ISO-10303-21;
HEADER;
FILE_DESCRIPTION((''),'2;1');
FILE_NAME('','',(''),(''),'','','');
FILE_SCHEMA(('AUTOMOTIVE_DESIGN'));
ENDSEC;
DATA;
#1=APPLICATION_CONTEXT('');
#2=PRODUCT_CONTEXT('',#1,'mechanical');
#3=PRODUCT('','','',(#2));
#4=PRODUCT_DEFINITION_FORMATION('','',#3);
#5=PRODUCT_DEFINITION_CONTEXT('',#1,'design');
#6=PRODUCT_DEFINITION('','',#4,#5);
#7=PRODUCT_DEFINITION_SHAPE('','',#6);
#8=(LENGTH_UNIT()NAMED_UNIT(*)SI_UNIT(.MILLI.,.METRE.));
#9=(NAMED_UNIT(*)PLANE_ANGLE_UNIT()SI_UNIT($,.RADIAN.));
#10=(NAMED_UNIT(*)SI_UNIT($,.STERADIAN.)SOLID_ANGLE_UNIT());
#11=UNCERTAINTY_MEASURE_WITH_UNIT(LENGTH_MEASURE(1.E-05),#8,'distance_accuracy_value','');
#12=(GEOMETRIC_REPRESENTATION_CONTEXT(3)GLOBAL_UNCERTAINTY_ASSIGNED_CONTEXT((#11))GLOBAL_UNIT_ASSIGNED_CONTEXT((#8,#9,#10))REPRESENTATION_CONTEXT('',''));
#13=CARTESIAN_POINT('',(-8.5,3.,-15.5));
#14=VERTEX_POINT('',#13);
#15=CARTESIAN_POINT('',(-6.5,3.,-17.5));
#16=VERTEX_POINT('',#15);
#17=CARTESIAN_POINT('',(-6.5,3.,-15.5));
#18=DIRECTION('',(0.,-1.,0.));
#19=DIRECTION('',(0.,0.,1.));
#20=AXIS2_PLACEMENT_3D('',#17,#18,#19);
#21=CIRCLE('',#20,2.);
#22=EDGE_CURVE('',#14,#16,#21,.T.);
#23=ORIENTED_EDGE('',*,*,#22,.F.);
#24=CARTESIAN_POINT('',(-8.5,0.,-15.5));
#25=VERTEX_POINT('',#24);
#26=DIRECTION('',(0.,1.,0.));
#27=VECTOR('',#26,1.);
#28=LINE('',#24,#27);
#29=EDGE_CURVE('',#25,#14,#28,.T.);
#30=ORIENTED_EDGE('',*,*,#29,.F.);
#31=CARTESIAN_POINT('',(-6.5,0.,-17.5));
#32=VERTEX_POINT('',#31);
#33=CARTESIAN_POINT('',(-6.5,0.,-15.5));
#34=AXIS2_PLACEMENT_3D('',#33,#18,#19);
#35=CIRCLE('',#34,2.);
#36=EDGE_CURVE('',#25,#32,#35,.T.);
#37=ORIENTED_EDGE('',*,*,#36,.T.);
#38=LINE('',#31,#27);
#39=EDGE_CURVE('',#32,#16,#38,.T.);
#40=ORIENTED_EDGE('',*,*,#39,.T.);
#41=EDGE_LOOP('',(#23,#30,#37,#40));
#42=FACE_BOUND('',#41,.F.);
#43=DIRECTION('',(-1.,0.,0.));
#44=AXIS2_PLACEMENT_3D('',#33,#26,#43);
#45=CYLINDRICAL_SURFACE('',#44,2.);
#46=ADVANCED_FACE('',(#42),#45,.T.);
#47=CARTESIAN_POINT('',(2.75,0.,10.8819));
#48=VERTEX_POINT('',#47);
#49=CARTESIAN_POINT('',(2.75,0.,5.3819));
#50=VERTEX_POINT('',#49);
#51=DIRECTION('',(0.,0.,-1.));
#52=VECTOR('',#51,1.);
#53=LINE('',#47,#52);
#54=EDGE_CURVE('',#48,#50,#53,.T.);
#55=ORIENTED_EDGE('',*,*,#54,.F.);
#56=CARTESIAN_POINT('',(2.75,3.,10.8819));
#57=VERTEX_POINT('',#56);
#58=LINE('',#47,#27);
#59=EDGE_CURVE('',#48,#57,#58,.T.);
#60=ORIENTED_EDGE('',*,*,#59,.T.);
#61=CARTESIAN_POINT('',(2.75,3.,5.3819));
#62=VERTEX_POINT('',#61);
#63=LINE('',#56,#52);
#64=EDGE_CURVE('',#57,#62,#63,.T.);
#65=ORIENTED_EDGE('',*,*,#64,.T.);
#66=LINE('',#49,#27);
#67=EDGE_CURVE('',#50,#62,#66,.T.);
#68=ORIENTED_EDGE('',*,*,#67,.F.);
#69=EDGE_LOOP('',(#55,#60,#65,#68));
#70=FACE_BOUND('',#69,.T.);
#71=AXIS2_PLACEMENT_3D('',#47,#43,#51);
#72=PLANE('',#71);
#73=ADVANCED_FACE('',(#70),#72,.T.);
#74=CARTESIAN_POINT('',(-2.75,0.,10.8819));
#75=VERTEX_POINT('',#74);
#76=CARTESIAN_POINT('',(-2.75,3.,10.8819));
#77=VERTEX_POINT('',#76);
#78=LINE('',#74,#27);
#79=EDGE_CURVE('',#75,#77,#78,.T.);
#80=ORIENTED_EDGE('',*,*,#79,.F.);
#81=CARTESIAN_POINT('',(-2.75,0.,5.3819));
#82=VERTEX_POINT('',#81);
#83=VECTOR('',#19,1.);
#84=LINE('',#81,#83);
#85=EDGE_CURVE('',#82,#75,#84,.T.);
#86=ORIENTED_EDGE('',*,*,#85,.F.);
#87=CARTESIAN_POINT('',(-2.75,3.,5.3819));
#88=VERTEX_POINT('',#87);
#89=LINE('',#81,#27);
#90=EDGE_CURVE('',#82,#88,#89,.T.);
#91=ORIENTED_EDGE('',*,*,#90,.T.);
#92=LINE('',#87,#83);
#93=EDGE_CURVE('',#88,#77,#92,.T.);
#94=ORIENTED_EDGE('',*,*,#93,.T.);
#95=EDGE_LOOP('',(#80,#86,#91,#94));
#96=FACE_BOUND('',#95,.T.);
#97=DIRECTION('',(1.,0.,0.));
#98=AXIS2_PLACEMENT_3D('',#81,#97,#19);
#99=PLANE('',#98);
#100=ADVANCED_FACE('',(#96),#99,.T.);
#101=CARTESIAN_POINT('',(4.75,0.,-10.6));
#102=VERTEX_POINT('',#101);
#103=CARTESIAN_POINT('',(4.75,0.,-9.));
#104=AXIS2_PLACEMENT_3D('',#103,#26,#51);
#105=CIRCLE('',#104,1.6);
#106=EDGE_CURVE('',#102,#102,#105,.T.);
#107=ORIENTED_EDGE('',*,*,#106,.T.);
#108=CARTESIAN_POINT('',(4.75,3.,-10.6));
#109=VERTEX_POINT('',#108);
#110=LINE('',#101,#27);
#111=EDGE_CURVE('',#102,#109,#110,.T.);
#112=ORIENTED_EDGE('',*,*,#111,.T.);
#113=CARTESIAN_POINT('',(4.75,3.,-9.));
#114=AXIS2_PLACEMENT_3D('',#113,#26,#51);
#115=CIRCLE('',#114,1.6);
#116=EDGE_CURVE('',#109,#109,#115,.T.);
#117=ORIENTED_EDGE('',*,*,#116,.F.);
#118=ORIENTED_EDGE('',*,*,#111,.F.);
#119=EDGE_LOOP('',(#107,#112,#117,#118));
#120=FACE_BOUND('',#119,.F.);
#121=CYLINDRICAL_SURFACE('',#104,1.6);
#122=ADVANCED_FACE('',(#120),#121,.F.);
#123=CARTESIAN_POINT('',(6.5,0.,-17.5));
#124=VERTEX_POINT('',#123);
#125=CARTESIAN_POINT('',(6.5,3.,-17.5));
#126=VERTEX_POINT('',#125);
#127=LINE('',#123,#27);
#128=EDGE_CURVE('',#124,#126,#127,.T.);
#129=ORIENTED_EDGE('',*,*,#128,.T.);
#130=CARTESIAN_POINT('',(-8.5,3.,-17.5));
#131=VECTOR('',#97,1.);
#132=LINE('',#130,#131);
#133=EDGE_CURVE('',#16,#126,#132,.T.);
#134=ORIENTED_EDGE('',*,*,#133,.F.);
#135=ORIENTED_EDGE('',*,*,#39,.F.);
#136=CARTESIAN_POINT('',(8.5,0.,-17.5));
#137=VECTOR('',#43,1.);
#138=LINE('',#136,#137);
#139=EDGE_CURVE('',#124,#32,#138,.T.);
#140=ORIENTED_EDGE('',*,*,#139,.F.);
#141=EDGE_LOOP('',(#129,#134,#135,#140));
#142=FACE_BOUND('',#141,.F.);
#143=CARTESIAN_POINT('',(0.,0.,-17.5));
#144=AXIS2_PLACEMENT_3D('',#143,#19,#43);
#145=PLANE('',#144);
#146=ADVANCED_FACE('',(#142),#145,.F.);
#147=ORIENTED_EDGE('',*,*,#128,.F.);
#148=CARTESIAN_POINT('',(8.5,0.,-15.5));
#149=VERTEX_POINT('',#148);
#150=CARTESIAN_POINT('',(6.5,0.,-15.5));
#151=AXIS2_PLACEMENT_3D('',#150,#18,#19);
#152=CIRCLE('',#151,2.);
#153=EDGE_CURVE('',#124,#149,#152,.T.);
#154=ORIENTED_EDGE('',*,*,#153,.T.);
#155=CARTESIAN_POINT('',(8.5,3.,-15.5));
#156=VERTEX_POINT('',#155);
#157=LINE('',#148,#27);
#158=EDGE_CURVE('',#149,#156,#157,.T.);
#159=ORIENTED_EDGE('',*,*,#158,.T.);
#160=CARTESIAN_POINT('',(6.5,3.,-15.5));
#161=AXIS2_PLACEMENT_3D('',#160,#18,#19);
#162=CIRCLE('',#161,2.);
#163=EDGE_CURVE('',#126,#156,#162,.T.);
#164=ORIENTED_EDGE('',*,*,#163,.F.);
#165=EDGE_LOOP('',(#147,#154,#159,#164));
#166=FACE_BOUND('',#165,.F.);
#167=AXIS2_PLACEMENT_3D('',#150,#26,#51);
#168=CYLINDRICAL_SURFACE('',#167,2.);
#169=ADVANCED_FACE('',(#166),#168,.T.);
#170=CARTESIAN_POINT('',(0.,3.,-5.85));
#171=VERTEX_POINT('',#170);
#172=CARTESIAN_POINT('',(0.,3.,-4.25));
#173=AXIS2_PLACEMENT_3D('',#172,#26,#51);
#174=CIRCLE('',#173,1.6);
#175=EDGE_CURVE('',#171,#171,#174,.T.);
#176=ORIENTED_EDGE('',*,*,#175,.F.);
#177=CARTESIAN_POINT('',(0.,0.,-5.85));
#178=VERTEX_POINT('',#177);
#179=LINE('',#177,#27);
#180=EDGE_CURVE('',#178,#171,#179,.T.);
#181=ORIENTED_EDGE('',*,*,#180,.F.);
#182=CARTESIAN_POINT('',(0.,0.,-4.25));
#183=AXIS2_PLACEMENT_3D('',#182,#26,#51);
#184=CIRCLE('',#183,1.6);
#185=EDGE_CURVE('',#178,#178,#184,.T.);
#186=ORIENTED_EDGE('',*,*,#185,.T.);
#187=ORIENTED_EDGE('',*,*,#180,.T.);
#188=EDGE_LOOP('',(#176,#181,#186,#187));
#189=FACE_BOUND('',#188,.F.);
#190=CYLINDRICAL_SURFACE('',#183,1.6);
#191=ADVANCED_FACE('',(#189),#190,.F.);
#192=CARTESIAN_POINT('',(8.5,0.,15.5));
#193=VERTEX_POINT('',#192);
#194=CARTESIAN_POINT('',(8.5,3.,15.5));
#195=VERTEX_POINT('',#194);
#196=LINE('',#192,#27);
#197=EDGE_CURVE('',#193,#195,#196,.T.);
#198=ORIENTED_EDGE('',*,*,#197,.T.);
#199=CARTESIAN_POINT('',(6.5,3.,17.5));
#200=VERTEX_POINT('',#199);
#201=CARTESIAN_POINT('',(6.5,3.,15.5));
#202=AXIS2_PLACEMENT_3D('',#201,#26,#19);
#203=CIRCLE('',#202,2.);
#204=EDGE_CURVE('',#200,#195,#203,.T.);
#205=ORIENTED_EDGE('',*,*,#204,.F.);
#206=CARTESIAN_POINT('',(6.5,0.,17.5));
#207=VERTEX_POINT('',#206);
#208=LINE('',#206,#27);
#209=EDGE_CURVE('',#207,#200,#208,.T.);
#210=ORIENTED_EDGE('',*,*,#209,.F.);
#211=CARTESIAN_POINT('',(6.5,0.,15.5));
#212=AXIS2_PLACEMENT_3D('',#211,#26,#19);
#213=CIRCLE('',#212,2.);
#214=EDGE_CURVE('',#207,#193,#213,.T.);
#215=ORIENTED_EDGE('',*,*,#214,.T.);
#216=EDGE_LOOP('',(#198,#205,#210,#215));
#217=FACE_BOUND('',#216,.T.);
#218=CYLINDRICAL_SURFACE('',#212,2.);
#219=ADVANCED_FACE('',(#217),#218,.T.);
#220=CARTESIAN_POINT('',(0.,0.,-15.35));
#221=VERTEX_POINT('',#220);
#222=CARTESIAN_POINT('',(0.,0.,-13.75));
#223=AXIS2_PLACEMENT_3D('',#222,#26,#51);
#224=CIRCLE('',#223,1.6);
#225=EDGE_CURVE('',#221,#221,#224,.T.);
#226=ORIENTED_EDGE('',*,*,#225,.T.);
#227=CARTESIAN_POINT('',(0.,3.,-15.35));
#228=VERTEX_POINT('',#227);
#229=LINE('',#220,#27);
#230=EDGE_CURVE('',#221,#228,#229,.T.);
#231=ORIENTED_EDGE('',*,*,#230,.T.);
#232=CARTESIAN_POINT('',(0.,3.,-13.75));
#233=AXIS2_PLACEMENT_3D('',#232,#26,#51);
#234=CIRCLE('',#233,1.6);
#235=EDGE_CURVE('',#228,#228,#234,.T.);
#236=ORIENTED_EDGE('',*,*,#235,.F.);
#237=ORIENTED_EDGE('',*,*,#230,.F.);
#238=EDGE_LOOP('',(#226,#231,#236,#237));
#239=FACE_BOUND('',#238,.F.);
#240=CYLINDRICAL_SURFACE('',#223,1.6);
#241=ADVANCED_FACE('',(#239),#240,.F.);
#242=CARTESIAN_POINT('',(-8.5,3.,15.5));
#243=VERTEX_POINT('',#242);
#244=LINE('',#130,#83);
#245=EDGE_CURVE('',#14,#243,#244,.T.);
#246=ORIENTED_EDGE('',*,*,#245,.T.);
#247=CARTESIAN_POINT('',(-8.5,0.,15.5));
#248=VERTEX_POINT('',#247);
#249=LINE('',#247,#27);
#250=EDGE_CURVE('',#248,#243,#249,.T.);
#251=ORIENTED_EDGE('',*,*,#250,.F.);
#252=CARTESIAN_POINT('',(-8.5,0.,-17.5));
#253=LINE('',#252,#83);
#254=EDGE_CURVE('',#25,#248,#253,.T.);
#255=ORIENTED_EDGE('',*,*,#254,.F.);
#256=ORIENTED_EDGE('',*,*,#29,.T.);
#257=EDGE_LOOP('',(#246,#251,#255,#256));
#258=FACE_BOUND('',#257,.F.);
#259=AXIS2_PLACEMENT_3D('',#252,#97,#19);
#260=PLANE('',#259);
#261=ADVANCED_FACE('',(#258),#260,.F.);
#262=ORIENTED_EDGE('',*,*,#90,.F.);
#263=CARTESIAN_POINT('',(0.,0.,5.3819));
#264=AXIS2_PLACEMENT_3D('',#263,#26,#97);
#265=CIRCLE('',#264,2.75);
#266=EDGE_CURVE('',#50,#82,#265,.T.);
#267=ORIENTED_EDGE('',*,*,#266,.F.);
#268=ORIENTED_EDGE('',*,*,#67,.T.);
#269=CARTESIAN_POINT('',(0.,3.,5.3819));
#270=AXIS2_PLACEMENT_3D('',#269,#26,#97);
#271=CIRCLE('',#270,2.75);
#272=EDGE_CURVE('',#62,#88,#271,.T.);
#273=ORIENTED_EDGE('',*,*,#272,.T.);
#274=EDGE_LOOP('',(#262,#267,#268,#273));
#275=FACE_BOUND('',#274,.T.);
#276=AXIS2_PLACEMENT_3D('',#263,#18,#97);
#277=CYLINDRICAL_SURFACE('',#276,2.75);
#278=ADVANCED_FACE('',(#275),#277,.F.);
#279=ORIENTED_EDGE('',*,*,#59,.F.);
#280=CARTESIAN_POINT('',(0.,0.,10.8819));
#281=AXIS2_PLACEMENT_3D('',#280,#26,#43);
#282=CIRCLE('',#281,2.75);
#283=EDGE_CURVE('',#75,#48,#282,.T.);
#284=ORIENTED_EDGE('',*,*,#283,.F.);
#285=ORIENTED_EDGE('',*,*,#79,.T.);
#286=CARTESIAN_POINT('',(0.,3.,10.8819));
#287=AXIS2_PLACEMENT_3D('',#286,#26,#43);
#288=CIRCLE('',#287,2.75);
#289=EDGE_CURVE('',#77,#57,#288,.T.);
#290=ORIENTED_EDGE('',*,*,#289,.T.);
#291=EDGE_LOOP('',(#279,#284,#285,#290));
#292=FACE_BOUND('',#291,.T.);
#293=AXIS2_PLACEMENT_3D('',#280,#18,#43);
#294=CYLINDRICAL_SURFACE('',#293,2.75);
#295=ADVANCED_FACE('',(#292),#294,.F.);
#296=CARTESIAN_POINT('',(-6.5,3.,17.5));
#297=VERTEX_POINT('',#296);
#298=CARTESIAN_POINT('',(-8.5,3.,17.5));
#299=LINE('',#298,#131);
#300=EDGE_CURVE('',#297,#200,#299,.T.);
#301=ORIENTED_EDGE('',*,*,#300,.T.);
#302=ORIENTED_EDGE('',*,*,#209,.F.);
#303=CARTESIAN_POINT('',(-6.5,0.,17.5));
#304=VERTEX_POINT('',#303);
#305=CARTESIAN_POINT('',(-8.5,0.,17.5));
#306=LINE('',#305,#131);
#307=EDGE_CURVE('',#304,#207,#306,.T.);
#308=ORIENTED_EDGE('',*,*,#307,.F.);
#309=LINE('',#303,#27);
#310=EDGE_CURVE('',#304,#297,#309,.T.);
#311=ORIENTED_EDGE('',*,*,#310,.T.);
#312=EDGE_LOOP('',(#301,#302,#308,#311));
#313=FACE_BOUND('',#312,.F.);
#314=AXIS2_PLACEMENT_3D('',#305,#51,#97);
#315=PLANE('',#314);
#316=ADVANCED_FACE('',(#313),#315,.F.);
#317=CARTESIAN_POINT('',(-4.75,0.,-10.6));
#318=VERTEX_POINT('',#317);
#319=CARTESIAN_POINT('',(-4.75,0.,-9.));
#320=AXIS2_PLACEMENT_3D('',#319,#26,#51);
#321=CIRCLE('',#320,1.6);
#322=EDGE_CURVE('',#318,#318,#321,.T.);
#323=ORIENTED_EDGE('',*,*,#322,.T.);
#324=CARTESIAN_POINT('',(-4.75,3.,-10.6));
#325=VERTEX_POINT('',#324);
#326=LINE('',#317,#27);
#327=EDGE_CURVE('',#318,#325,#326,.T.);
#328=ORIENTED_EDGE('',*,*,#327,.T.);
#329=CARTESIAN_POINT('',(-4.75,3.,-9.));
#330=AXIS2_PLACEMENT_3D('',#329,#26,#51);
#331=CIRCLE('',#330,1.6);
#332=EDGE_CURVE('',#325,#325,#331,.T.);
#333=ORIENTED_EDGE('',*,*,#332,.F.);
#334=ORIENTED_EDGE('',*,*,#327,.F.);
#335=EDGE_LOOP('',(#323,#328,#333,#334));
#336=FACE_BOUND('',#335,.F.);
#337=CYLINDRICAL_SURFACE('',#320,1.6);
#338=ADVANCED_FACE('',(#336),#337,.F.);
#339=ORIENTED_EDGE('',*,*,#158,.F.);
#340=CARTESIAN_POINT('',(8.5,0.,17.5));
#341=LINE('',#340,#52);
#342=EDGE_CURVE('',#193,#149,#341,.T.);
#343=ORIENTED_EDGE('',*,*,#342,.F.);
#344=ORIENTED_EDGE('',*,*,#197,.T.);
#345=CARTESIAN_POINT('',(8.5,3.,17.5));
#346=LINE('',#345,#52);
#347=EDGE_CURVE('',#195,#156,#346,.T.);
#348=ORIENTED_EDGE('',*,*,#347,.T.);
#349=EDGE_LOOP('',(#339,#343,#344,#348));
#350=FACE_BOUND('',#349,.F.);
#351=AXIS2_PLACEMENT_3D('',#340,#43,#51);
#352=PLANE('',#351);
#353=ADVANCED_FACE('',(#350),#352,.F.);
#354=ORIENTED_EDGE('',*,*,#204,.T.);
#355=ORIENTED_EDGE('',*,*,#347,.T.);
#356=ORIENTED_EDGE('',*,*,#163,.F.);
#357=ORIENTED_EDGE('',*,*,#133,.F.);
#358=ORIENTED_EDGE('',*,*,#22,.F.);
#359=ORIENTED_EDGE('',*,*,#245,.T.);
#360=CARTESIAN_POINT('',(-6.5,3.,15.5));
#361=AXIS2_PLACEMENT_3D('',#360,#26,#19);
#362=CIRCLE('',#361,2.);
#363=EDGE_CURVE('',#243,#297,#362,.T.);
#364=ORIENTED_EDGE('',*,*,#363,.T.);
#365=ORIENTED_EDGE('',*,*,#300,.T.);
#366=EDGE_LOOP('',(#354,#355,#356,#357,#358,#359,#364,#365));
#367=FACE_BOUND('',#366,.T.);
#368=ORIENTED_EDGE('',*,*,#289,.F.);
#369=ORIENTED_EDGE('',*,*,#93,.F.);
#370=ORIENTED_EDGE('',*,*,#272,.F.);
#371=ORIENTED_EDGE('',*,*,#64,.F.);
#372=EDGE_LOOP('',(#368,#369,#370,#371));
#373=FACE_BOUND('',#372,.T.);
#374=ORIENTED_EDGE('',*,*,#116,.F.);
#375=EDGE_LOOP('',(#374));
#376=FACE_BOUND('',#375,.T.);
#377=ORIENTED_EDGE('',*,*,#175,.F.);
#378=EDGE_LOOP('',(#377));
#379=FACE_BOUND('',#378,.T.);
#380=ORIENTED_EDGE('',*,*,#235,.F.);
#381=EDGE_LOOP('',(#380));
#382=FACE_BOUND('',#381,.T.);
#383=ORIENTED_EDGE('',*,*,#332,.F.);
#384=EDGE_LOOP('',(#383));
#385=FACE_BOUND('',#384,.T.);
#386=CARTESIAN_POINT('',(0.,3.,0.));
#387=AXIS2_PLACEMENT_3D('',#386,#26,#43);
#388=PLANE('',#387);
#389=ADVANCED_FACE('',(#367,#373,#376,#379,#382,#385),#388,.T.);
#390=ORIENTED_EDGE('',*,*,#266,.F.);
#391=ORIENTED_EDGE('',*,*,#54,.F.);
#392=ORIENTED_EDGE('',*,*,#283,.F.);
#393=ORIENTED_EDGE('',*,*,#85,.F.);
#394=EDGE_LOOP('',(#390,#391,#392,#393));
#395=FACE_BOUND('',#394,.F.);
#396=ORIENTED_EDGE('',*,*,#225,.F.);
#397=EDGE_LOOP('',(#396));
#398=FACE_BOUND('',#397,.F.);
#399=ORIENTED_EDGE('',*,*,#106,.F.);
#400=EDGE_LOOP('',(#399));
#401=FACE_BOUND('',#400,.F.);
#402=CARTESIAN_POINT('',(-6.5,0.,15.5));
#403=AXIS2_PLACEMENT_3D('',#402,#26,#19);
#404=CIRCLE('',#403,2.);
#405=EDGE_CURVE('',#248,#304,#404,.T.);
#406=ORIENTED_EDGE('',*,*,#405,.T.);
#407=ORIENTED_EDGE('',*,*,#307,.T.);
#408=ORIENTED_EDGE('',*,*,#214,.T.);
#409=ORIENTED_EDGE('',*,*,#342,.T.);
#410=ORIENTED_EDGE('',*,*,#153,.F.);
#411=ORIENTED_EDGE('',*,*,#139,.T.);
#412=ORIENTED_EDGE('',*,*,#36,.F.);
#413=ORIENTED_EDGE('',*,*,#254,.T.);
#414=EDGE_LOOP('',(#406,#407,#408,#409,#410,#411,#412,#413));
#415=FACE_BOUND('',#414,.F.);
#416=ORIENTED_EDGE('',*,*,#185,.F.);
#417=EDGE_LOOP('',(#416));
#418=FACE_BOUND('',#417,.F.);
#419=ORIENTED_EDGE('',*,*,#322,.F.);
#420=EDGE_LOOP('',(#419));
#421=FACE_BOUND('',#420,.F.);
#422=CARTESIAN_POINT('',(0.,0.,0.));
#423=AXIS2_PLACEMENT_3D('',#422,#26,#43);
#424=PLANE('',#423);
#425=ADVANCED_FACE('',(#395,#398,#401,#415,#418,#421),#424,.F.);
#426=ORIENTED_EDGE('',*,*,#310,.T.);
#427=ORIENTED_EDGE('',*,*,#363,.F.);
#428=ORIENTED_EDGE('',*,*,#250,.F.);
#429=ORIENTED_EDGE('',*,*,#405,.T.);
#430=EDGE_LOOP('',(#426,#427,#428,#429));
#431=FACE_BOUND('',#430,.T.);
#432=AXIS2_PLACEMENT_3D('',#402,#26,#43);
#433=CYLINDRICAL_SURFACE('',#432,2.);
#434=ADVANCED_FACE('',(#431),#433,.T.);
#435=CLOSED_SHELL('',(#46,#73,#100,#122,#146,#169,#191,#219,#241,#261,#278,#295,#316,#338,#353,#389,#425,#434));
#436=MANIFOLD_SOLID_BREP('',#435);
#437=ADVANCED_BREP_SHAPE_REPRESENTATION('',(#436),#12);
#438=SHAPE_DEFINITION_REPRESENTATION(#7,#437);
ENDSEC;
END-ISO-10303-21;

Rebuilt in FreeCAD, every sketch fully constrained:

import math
import FreeCAD as App
import Part
import Sketcher
Q = App.Units.Quantity


def edges_at(feature, points):
    """Names of the edges that pass closest to the given points."""
    edges = feature.Shape.Edges
    near = lambda p: min(range(len(edges)), key=lambda i: edges[i].distToShape(Part.Vertex(*p))[0])
    return sorted({f"Edge{near(p) + 1}" for p in points})

doc = App.newDocument("Part")
body = doc.addObject("PartDesign::Body", "Body")

sketch1 = body.newObject("Sketcher::SketchObject", "Sketch")
sketch1.AttachmentSupport = (doc.getObject("XZ_Plane"), [""])
sketch1.MapMode = "FlatFace"
sketch1.addGeometry([
    Part.LineSegment(App.Vector(-8.5, -17.5, 0), App.Vector(-8.5, 17.5, 0)),
    Part.LineSegment(App.Vector(-8.5, 17.5, 0), App.Vector(8.5, 17.5, 0)),
    Part.LineSegment(App.Vector(8.5, 17.5, 0), App.Vector(8.5, -17.5, 0)),
    Part.LineSegment(App.Vector(8.5, -17.5, 0), App.Vector(-8.5, -17.5, 0)),
    Part.LineSegment(App.Vector(2.8, 5.4, 0), App.Vector(2.8, 10.9, 0)),
    Part.ArcOfCircle(Part.Circle(App.Vector(0, 10.9, 0), App.Vector(0, 0, 1), 2.8), math.radians(0), math.radians(180)),
    Part.LineSegment(App.Vector(-2.8, 10.9, 0), App.Vector(-2.8, 5.4, 0)),
    Part.ArcOfCircle(Part.Circle(App.Vector(0, 5.4, 0), App.Vector(0, 0, 1), 2.8), math.radians(180), math.radians(360)),
], False)
sketch1.addConstraint([
    Sketcher.Constraint("Coincident", 0, 2, 1, 1),
    Sketcher.Constraint("Coincident", 1, 2, 2, 1),
    Sketcher.Constraint("Coincident", 2, 2, 3, 1),
    Sketcher.Constraint("Coincident", 3, 2, 0, 1),
    Sketcher.Constraint("Tangent", 4, 2, 5, 1),
    Sketcher.Constraint("Tangent", 5, 2, 6, 1),
    Sketcher.Constraint("Tangent", 6, 2, 7, 1),
    Sketcher.Constraint("Tangent", 7, 2, 4, 1),
    Sketcher.Constraint("Vertical", 0),
    Sketcher.Constraint("Horizontal", 1),
    Sketcher.Constraint("Vertical", 2),
    Sketcher.Constraint("Horizontal", 3),
    Sketcher.Constraint("Vertical", 4),
    Sketcher.Constraint("Vertical", 6),
    Sketcher.Constraint("Symmetric", 0, 2, 2, 2, -1, 1),
    Sketcher.Constraint("PointOnObject", 5, 3, -2),
    Sketcher.Constraint("DistanceX", 1, 1, 1, 2, Q("17 mm")),
    Sketcher.Constraint("DistanceY", 0, 1, 0, 2, Q("35 mm")),
    Sketcher.Constraint("Radius", 5, Q("2.75 mm")),
    Sketcher.Constraint("DistanceY", 4, 1, 4, 2, Q("5.5 mm")),
    Sketcher.Constraint("DistanceY", -1, 1, 5, 3, Q("10.882 mm")),
])
pad1 = body.newObject("PartDesign::Pad", "Pad")
pad1.Profile = sketch1
pad1.Length = 3
pad1.Reversed = True

sketch2 = body.newObject("Sketcher::SketchObject", "Sketch001")
sketch2.AttachmentSupport = (doc.getObject("XZ_Plane"), [""])
sketch2.MapMode = "FlatFace"
sketch2.addGeometry([
    Part.Circle(App.Vector(0, -4.2, 0), App.Vector(0, 0, 1), 1.6),
    Part.Circle(App.Vector(0, -13.8, 0), App.Vector(0, 0, 1), 1.6),
    Part.Circle(App.Vector(-4.8, -9, 0), App.Vector(0, 0, 1), 1.6),
    Part.Circle(App.Vector(4.8, -9, 0), App.Vector(0, 0, 1), 1.6),
], False)
sketch2.addConstraint([
    Sketcher.Constraint("Equal", 0, 1),
    Sketcher.Constraint("Equal", 1, 2),
    Sketcher.Constraint("Equal", 2, 3),
    Sketcher.Constraint("Symmetric", 2, 3, 3, 3, -2),
    Sketcher.Constraint("PointOnObject", 0, 3, -2),
    Sketcher.Constraint("PointOnObject", 1, 3, -2),
    Sketcher.Constraint("Diameter", 0, Q("3.2 mm")),
    Sketcher.Constraint("DistanceY", 2, 3, -1, 1, Q("9 mm")),
    Sketcher.Constraint("DistanceY", 1, 3, 0, 3, Q("9.5 mm")),
    Sketcher.Constraint("DistanceX", 2, 3, 3, 3, Q("9.5 mm")),
    Sketcher.Constraint("DistanceY", 0, 3, -1, 1, Q("4.25 mm")),
])
doc.recompute()
hole = body.newObject("PartDesign::Hole", "Hole")
hole.Profile = sketch2
hole.ThreadType = "None"
hole.Diameter = 3.2
hole.DepthType = "Dimension"
hole.Depth = 3
hole.DrillPoint = "Angled"
hole.DrillPointAngle = 118
doc.recompute()

fillet = body.newObject("PartDesign::Fillet", "Fillet")
fillet.Base = (hole, edges_at(hole, [
    (-8.5, 1.5, 17.5),
    (8.5, 1.5, 17.5),
    (-8.5, 1.5, -17.5),
    (8.5, 1.5, -17.5),
]))
fillet.Radius = 2

doc.recompute()
